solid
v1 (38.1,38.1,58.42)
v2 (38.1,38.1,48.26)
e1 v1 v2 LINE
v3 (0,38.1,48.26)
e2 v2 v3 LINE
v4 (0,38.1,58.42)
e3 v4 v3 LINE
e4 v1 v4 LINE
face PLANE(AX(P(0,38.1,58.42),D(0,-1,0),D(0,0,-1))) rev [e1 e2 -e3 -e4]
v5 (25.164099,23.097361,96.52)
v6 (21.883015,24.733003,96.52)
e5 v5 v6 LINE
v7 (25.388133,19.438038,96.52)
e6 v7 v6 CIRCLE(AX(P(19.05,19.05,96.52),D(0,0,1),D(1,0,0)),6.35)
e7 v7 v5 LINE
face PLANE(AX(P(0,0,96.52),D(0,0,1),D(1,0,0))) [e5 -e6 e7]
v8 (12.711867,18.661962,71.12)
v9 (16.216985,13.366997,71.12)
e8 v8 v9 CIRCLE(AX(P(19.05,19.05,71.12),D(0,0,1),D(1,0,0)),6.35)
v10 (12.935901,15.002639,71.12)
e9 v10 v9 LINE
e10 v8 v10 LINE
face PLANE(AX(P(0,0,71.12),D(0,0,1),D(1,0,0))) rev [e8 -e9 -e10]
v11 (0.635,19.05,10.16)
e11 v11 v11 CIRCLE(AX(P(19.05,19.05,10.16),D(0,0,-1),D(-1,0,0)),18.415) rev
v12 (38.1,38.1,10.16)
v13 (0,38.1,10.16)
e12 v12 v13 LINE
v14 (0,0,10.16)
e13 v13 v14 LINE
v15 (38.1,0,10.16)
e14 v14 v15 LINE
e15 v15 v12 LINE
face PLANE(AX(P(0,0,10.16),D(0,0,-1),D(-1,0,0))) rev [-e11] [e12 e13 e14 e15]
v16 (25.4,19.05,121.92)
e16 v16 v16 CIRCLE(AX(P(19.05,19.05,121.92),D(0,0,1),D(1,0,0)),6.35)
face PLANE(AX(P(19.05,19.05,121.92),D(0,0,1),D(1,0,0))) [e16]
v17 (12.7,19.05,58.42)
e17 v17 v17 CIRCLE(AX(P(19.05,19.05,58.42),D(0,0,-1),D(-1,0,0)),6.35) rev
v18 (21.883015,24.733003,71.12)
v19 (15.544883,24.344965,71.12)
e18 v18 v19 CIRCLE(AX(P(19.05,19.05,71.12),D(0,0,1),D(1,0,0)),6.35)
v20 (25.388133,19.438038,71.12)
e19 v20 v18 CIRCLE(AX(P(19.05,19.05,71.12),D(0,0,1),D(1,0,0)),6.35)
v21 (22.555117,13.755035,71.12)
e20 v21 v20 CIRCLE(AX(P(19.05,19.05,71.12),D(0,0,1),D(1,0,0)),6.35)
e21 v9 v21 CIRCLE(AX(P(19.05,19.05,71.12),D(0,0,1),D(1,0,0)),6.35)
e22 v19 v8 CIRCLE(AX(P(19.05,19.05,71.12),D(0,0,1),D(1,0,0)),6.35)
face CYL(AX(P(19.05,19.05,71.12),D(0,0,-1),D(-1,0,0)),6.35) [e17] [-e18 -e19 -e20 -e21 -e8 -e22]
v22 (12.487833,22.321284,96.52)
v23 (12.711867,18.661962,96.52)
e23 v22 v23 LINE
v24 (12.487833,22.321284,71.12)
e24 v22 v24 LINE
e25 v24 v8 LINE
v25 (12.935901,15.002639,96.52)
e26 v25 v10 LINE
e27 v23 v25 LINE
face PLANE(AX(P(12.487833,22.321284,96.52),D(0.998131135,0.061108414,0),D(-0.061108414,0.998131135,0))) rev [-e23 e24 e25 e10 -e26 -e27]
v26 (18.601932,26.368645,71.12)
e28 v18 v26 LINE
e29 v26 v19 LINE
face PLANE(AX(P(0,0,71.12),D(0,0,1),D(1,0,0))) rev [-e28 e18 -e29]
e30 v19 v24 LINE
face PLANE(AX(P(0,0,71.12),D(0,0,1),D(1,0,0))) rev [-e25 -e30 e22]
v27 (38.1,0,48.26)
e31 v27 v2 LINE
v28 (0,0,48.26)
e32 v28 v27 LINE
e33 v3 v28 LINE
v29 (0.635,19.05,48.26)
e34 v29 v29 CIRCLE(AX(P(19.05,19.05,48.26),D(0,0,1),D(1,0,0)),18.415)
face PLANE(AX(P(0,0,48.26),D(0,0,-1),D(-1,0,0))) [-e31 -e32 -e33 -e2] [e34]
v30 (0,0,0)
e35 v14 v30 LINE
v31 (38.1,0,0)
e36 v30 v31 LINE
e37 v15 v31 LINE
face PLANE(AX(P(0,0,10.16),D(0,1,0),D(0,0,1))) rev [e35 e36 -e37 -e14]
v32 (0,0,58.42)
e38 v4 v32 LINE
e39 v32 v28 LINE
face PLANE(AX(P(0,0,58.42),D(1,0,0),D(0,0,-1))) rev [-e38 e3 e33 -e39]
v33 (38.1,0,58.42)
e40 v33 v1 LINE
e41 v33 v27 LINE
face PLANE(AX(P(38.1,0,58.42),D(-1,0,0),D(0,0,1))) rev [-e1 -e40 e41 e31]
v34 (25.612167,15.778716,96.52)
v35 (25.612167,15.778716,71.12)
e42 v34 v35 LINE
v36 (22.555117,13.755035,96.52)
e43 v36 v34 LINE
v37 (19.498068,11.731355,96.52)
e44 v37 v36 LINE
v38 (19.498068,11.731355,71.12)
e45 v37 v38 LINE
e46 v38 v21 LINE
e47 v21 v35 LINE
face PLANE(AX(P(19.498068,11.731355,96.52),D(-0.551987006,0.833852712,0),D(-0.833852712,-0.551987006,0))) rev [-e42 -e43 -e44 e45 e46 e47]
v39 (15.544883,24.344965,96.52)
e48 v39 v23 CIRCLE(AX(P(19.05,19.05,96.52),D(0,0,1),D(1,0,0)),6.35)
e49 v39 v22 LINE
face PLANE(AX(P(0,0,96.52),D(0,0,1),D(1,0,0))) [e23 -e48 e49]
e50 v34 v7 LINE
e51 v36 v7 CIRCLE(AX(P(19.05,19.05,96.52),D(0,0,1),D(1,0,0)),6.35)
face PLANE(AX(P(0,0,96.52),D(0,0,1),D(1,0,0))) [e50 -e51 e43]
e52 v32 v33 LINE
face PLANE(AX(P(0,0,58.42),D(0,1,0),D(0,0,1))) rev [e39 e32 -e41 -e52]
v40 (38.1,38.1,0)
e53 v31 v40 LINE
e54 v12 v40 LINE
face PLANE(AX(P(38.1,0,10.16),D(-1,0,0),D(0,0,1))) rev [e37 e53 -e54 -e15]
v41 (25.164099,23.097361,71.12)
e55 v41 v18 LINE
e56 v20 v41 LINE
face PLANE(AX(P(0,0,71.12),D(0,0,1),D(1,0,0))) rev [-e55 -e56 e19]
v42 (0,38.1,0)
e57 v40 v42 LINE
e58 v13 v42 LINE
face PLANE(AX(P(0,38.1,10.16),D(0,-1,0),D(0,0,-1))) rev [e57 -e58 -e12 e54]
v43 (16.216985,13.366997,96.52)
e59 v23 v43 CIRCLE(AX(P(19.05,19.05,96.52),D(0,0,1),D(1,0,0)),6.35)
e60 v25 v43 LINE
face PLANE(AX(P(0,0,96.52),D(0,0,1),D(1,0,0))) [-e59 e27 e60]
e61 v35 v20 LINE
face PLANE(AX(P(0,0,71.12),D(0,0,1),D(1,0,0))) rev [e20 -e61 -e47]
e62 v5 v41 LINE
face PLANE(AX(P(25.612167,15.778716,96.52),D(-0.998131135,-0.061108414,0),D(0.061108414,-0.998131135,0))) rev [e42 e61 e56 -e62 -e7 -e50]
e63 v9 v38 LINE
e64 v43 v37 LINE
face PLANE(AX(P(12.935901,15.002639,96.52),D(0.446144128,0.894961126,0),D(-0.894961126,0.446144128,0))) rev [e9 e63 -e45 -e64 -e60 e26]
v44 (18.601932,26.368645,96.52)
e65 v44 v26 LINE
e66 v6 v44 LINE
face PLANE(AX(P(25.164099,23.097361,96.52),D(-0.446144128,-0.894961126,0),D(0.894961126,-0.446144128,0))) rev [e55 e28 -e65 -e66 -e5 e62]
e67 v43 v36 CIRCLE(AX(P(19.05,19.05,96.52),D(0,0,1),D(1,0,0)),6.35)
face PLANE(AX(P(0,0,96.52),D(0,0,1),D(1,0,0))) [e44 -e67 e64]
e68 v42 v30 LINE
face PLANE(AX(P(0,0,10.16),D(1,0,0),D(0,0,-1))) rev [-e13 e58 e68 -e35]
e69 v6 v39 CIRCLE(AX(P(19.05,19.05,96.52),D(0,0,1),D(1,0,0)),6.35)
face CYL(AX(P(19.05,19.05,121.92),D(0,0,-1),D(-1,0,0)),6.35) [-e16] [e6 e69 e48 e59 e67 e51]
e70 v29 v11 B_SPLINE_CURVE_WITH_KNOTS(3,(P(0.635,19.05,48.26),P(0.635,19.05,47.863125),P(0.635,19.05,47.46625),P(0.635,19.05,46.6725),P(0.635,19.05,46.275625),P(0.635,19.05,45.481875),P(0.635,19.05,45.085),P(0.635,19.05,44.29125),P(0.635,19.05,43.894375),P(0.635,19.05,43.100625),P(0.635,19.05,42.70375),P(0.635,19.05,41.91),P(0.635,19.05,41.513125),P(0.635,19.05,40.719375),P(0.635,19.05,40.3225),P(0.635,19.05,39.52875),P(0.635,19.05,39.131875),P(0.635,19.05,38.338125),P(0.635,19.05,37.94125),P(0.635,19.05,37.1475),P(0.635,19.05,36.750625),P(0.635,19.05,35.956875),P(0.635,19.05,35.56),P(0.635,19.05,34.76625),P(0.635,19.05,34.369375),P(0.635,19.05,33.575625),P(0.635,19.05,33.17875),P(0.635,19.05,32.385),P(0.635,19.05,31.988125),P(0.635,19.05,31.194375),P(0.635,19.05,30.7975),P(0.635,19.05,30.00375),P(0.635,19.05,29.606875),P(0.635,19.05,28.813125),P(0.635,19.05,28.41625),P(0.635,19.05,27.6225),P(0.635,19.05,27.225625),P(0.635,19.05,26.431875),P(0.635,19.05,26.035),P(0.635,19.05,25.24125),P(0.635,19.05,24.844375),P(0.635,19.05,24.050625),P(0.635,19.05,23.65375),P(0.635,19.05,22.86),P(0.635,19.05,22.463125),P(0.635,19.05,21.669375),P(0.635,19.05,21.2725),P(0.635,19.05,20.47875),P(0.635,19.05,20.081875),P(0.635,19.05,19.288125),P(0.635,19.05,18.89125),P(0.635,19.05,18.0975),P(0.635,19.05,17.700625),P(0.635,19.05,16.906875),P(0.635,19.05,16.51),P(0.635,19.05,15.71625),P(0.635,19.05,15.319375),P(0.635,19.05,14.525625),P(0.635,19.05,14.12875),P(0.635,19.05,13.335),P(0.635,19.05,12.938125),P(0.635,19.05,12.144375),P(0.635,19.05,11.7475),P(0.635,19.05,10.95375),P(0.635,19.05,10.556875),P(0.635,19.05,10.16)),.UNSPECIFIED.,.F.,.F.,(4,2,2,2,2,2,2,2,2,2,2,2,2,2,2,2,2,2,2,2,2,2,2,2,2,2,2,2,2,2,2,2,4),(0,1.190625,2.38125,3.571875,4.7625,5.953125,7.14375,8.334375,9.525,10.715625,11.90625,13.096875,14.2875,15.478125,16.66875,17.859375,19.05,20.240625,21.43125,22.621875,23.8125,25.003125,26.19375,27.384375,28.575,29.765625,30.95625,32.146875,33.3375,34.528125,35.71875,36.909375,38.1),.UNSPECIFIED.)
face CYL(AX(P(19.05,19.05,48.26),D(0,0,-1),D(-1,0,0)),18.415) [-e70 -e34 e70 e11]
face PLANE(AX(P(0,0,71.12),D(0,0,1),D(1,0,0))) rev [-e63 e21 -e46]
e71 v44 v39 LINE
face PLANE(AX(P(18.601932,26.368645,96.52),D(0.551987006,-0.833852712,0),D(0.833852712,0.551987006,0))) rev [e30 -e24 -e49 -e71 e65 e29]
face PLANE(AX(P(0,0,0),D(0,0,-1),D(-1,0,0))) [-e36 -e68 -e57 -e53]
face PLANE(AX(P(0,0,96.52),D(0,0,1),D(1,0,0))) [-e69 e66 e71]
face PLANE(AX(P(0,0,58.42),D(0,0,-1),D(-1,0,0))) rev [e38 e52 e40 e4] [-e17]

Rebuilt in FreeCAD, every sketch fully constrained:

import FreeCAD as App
import Part
import Sketcher
Q = App.Units.Quantity

doc = App.newDocument("Part")
body = doc.addObject("PartDesign::Body", "Body")

sketch1 = body.newObject("Sketcher::SketchObject", "Sketch")
sketch1.AttachmentSupport = (doc.getObject("XY_Plane"), [""])
sketch1.MapMode = "FlatFace"
sketch1.addGeometry(Part.LineSegment(App.Vector(0, 38.1, 0), App.Vector(0, 0, 0)), False)
sketch1.addGeometry(Part.LineSegment(App.Vector(0, 0, 0), App.Vector(38.1, 0, 0)), False)
sketch1.addGeometry(Part.LineSegment(App.Vector(38.1, 0, 0), App.Vector(38.1, 38.1, 0)), False)
sketch1.addGeometry(Part.LineSegment(App.Vector(38.1, 38.1, 0), App.Vector(0, 38.1, 0)), False)
sketch1.addConstraint(Sketcher.Constraint("Coincident", 0, 2, 1, 1))
sketch1.addConstraint(Sketcher.Constraint("Coincident", 1, 2, 2, 1))
sketch1.addConstraint(Sketcher.Constraint("Coincident", 2, 2, 3, 1))
sketch1.addConstraint(Sketcher.Constraint("Coincident", 3, 2, 0, 1))
sketch1.addConstraint(Sketcher.Constraint("Vertical", 0))
sketch1.addConstraint(Sketcher.Constraint("Horizontal", 1))
sketch1.addConstraint(Sketcher.Constraint("Vertical", 2))
sketch1.addConstraint(Sketcher.Constraint("Horizontal", 3))
sketch1.addConstraint(Sketcher.Constraint("Coincident", 0, 2, -1, 1))
sketch1.addConstraint(Sketcher.Constraint("Equal", 3, 0))
sketch1.addConstraint(Sketcher.Constraint("DistanceX", 1, 1, 1, 2, Q("1.5 in")))
pad1 = body.newObject("PartDesign::Pad", "Pad")
pad1.Profile = sketch1
pad1.Length = Q("0.4 in")

sketch2 = body.newObject("Sketcher::SketchObject", "Sketch001")
sketch2.AttachmentSupport = (doc.getObject("XY_Plane"), [""])
sketch2.MapMode = "FlatFace"
sketch2.AttachmentOffset = App.Placement(App.Vector(0, 0, 0.4 * 25.4), App.Rotation())
sketch2.addGeometry(Part.Circle(App.Vector(19.05, 19.05, 0), App.Vector(0, 0, 1), 18.415), False)
sketch2.addConstraint(Sketcher.Constraint("Diameter", 0, Q("1.45 in")))
sketch2.addConstraint(Sketcher.Constraint("DistanceX", -1, 1, 0, 3, Q("0.75 in")))
sketch2.addConstraint(Sketcher.Constraint("DistanceY", -1, 1, 0, 3, Q("0.75 in")))
pad2 = body.newObject("PartDesign::Pad", "Pad001")
pad2.Profile = sketch2
pad2.Length = Q("1.5 in")

sketch3 = body.newObject("Sketcher::SketchObject", "Sketch002")
sketch3.AttachmentSupport = (doc.getObject("XY_Plane"), [""])
sketch3.MapMode = "FlatFace"
sketch3.AttachmentOffset = App.Placement(App.Vector(0, 0, 1.9 * 25.4), App.Rotation())
sketch3.addGeometry(Part.LineSegment(App.Vector(0, 38.1, 0), App.Vector(0, 0, 0)), False)
sketch3.addGeometry(Part.LineSegment(App.Vector(0, 0, 0), App.Vector(38.1, 0, 0)), False)
sketch3.addGeometry(Part.LineSegment(App.Vector(38.1, 0, 0), App.Vector(38.1, 38.1, 0)), False)
sketch3.addGeometry(Part.LineSegment(App.Vector(38.1, 38.1, 0), App.Vector(0, 38.1, 0)), False)
sketch3.addConstraint(Sketcher.Constraint("Coincident", 0, 2, 1, 1))
sketch3.addConstraint(Sketcher.Constraint("Coincident", 1, 2, 2, 1))
sketch3.addConstraint(Sketcher.Constraint("Coincident", 2, 2, 3, 1))
sketch3.addConstraint(Sketcher.Constraint("Coincident", 3, 2, 0, 1))
sketch3.addConstraint(Sketcher.Constraint("Vertical", 0))
sketch3.addConstraint(Sketcher.Constraint("Horizontal", 1))
sketch3.addConstraint(Sketcher.Constraint("Vertical", 2))
sketch3.addConstraint(Sketcher.Constraint("Horizontal", 3))
sketch3.addConstraint(Sketcher.Constraint("Coincident", 0, 2, -1, 1))
sketch3.addConstraint(Sketcher.Constraint("Equal", 3, 0))
sketch3.addConstraint(Sketcher.Constraint("DistanceX", 1, 1, 1, 2, Q("1.5 in")))
pad3 = body.newObject("PartDesign::Pad", "Pad002")
pad3.Profile = sketch3
pad3.Length = Q("0.4 in")

sketch4 = body.newObject("Sketcher::SketchObject", "Sketch003")
sketch4.AttachmentSupport = (doc.getObject("XY_Plane"), [""])
sketch4.MapMode = "FlatFace"
sketch4.AttachmentOffset = App.Placement(App.Vector(0, 0, 2.3 * 25.4), App.Rotation())
sketch4.addGeometry(Part.Circle(App.Vector(19.05, 19.05, 0), App.Vector(0, 0, 1), 6.35), False)
sketch4.addConstraint(Sketcher.Constraint("Diameter", 0, Q("0.5 in")))
sketch4.addConstraint(Sketcher.Constraint("DistanceX", -1, 1, 0, 3, Q("0.75 in")))
sketch4.addConstraint(Sketcher.Constraint("DistanceY", -1, 1, 0, 3, Q("0.75 in")))
pad4 = body.newObject("PartDesign::Pad", "Pad003")
pad4.Profile = sketch4
pad4.Length = Q("0.5 in")

sketch5 = body.newObject("Sketcher::SketchObject", "Sketch004")
sketch5.AttachmentSupport = (doc.getObject("XY_Plane"), [""])
sketch5.MapMode = "FlatFace"
sketch5.AttachmentOffset = App.Placement(App.Vector(0, 0, 2.8 * 25.4), App.Rotation())
sketch5.addGeometry(Part.LineSegment(App.Vector(25.164099, 23.097361, 0), App.Vector(18.601932, 26.368645, 0)), False)
sketch5.addGeometry(Part.LineSegment(App.Vector(18.601932, 26.368645, 0), App.Vector(12.487833, 22.321284, 0)), False)
sketch5.addGeometry(Part.LineSegment(App.Vector(12.487833, 22.321284, 0), App.Vector(12.935901, 15.002639, 0)), False)
sketch5.addGeometry(Part.LineSegment(App.Vector(12.935901, 15.002639, 0), App.Vector(19.498068, 11.731355, 0)), False)
sketch5.addGeometry(Part.LineSegment(App.Vector(19.498068, 11.731355, 0), App.Vector(25.612167, 15.778716, 0)), False)
sketch5.addGeometry(Part.LineSegment(App.Vector(25.612167, 15.778716, 0), App.Vector(25.164099, 23.097361, 0)), False)
sketch5.addConstraint(Sketcher.Constraint("Coincident", 0, 2, 1, 1))
sketch5.addConstraint(Sketcher.Constraint("Coincident", 1, 2, 2, 1))
sketch5.addConstraint(Sketcher.Constraint("Coincident", 2, 2, 3, 1))
sketch5.addConstraint(Sketcher.Constraint("Coincident", 3, 2, 4, 1))
sketch5.addConstraint(Sketcher.Constraint("Coincident", 4, 2, 5, 1))
sketch5.addConstraint(Sketcher.Constraint("Coincident", 5, 2, 0, 1))
sketch5.addConstraint(Sketcher.Constraint("Parallel", 0, 3))
sketch5.addConstraint(Sketcher.Constraint("Parallel", 1, 4))
sketch5.addConstraint(Sketcher.Constraint("Parallel", 2, 5))
sketch5.addConstraint(Sketcher.Constraint("Equal", 0, 1))
sketch5.addConstraint(Sketcher.Constraint("Equal", 1, 2))
sketch5.addConstraint(Sketcher.Constraint("Equal", 2, 3))
sketch5.addConstraint(Sketcher.Constraint("DistanceX", -1, 1, 2, 2, 12.935901))
sketch5.addConstraint(Sketcher.Constraint("DistanceX", -1, 1, 5, 2, 25.164099))
sketch5.addConstraint(Sketcher.Constraint("DistanceX", 1, 2, 0, 2, 6.114099))
sketch5.addConstraint(Sketcher.Constraint("Distance", 0, 7.332348))
sketch5.addConstraint(Sketcher.Constraint("DistanceX", -1, 1, 0, 2, 18.601932))
sketch5.addConstraint(Sketcher.Constraint("DistanceY", -1, 1, 2, 2, 15.002639))
pad5 = body.newObject("PartDesign::Pad", "Pad004")
pad5.Profile = sketch5
pad5.Length = Q("1 in")

sketch6 = body.newObject("Sketcher::SketchObject", "Sketch005")
sketch6.AttachmentSupport = (doc.getObject("XY_Plane"), [""])
sketch6.MapMode = "FlatFace"
sketch6.AttachmentOffset = App.Placement(App.Vector(0, 0, 3.8 * 25.4), App.Rotation())
sketch6.addGeometry(Part.Circle(App.Vector(19.05, 19.05, 0), App.Vector(0, 0, 1), 6.35), False)
sketch6.addConstraint(Sketcher.Constraint("Diameter", 0, Q("0.5 in")))
sketch6.addConstraint(Sketcher.Constraint("DistanceX", -1, 1, 0, 3, Q("0.75 in")))
sketch6.addConstraint(Sketcher.Constraint("DistanceY", -1, 1, 0, 3, Q("0.75 in")))
pad6 = body.newObject("PartDesign::Pad", "Pad005")
pad6.Profile = sketch6
pad6.Length = Q("1 in")

doc.recompute()
